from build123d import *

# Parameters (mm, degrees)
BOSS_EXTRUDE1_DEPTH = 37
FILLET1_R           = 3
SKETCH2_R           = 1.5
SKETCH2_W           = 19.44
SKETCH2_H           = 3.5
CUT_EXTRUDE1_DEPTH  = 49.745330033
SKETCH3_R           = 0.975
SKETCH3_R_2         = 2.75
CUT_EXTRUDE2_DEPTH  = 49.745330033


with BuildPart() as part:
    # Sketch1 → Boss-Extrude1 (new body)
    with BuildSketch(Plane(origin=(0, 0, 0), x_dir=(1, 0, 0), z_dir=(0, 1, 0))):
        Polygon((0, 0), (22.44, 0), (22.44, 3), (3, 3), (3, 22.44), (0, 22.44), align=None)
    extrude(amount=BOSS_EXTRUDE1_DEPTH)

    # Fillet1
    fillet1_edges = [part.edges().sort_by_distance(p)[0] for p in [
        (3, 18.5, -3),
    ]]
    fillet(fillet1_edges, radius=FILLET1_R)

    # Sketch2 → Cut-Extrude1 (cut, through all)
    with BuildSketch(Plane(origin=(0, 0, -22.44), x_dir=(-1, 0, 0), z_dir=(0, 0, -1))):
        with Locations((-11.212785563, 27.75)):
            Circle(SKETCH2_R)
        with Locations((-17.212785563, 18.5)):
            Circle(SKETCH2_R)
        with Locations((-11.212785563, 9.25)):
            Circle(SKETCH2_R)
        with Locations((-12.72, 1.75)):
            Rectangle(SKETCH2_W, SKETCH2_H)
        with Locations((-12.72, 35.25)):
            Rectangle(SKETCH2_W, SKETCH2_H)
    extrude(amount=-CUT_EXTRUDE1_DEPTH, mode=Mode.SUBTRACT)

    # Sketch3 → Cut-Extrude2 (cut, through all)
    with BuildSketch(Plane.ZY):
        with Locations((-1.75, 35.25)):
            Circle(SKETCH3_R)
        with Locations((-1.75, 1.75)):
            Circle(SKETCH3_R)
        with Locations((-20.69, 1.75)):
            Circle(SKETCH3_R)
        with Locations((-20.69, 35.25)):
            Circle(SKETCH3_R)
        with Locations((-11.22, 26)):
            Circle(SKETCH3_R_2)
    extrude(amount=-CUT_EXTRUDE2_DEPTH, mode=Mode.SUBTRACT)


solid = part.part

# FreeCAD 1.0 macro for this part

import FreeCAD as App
import Part
import Sketcher

V = App.Vector


def edges_at(feature, points):
    """Names of the edges that pass closest to the given points."""
    edges = feature.Shape.Edges
    near = lambda p: min(range(len(edges)), key=lambda i: edges[i].distToShape(Part.Vertex(*p))[0])
    return sorted({f"Edge{near(p) + 1}" for p in points})

doc = App.newDocument("Part")
body = doc.addObject("PartDesign::Body", "Body")

sketch1 = body.newObject("Sketcher::SketchObject", "Sketch")
sketch1.AttachmentSupport = (doc.getObject("XZ_Plane"), [""])
sketch1.MapMode = "FlatFace"
sketch1.addGeometry([
    Part.LineSegment(V(0, 0, 0), V(22.44, 0, 0)),
    Part.LineSegment(V(22.44, 0, 0), V(22.44, -3, 0)),
    Part.LineSegment(V(22.44, -3, 0), V(3, -3, 0)),
    Part.LineSegment(V(3, -3, 0), V(3, -22.44, 0)),
    Part.LineSegment(V(3, -22.44, 0), V(0, -22.44, 0)),
    Part.LineSegment(V(0, -22.44, 0), V(0, 0, 0)),
], False)
sketch1.addConstraint([
    Sketcher.Constraint("Coincident", 0, 2, 1, 1),
    Sketcher.Constraint("Coincident", 1, 2, 2, 1),
    Sketcher.Constraint("Coincident", 2, 2, 3, 1),
    Sketcher.Constraint("Coincident", 3, 2, 4, 1),
    Sketcher.Constraint("Coincident", 4, 2, 5, 1),
    Sketcher.Constraint("Coincident", 5, 2, 0, 1),
    Sketcher.Constraint("Horizontal", 0),
    Sketcher.Constraint("Vertical", 1),
    Sketcher.Constraint("Horizontal", 2),
    Sketcher.Constraint("Vertical", 3),
    Sketcher.Constraint("Horizontal", 4),
    Sketcher.Constraint("Vertical", 5),
    Sketcher.Constraint("Coincident", 5, 2, -1, 1),
    Sketcher.Constraint("Equal", 4, 1),
    Sketcher.Constraint("Equal", 2, 3),
    Sketcher.Constraint("DistanceX", 4, 2, 4, 1, 3.0),
    Sketcher.Constraint("DistanceX", 0, 1, 0, 2, 22.44),
])
pad1 = body.newObject("PartDesign::Pad", "Pad")
pad1.Profile = sketch1
pad1.Length = 37
pad1.Reversed = True
doc.recompute()

fillet = body.newObject("PartDesign::Fillet", "Fillet")
fillet.Base = (pad1, edges_at(pad1, [(3, 18.5, -3)]))
fillet.Radius = 3

sketch2 = body.newObject("Sketcher::SketchObject", "Sketch001")
sketch2.AttachmentSupport = (doc.getObject("XY_Plane"), [""])
sketch2.MapMode = "FlatFace"
sketch2.AttachmentOffset = App.Placement(V(0, 0, -22.44), App.Rotation())
sketch2.addGeometry([
    Part.Circle(V(11.212786, 27.75, 0), V(0, 0, 1), 1.5),
    Part.Circle(V(17.212786, 18.5, 0), V(0, 0, 1), 1.5),
    Part.Circle(V(11.212786, 9.25, 0), V(0, 0, 1), 1.5),
    Part.LineSegment(V(22.44, 3.5, 0), V(22.44, 0, 0)),
    Part.LineSegment(V(22.44, 0, 0), V(3, 0, 0)),
    Part.LineSegment(V(3, 0, 0), V(3, 3.5, 0)),
    Part.LineSegment(V(3, 3.5, 0), V(22.44, 3.5, 0)),
    Part.LineSegment(V(22.44, 37, 0), V(22.44, 33.5, 0)),
    Part.LineSegment(V(22.44, 33.5, 0), V(3, 33.5, 0)),
    Part.LineSegment(V(3, 33.5, 0), V(3, 37, 0)),
    Part.LineSegment(V(3, 37, 0), V(22.44, 37, 0)),
], False)
sketch2.addConstraint([
    Sketcher.Constraint("Coincident", 3, 2, 4, 1),
    Sketcher.Constraint("Coincident", 4, 2, 5, 1),
    Sketcher.Constraint("Coincident", 5, 2, 6, 1),
    Sketcher.Constraint("Coincident", 6, 2, 3, 1),
    Sketcher.Constraint("Coincident", 7, 2, 8, 1),
    Sketcher.Constraint("Coincident", 8, 2, 9, 1),
    Sketcher.Constraint("Coincident", 9, 2, 10, 1),
    Sketcher.Constraint("Coincident", 10, 2, 7, 1),
    Sketcher.Constraint("Vertical", 3),
    Sketcher.Constraint("Horizontal", 4),
    Sketcher.Constraint("Vertical", 5),
    Sketcher.Constraint("Horizontal", 6),
    Sketcher.Constraint("Vertical", 7),
    Sketcher.Constraint("Horizontal", 8),
    Sketcher.Constraint("Vertical", 9),
    Sketcher.Constraint("Horizontal", 10),
    Sketcher.Constraint("Equal", 0, 1),
    Sketcher.Constraint("Equal", 1, 2),
    Sketcher.Constraint("PointOnObject", 3, 2, -1),
    Sketcher.Constraint("Vertical", 0, 3, 2, 3),
    Sketcher.Constraint("Vertical", 6, 2, 7, 2),
    Sketcher.Constraint("Vertical", 5, 2, 8, 2),
    Sketcher.Constraint("Equal", 5, 7),
    Sketcher.Constraint("Diameter", 0, 3.0),
    Sketcher.Constraint("DistanceY", 3, 2, 3, 1, 3.5),
    Sketcher.Constraint("DistanceX", -1, 1, 4, 2, 3.0),
    Sketcher.Constraint("DistanceY", -1, 1, 9, 2, 37.0),
    Sketcher.Constraint("DistanceX", 0, 3, 1, 3, 6.0),
    Sketcher.Constraint("DistanceY", 5, 2, 1, 3, 15.0),
    Sketcher.Constraint("DistanceX", 4, 2, 4, 1, 19.44),
    Sketcher.Constraint("DistanceY", 2, 3, 0, 3, 18.5),
    Sketcher.Constraint("DistanceY", -1, 1, 0, 3, 27.75),
    Sketcher.Constraint("DistanceX", -1, 1, 0, 3, 11.212786),
])
pocket1 = body.newObject("PartDesign::Pocket", "Pocket")
pocket1.Profile = sketch2
pocket1.Type = "ThroughAll"
pocket1.Reversed = True

sketch3 = body.newObject("Sketcher::SketchObject", "Sketch002")
sketch3.AttachmentSupport = (doc.getObject("YZ_Plane"), [""])
sketch3.MapMode = "FlatFace"
sketch3.addGeometry([
    Part.Circle(V(35.25, -1.75, 0), V(0, 0, 1), 0.975),
    Part.Circle(V(1.75, -1.75, 0), V(0, 0, 1), 0.975),
    Part.Circle(V(1.75, -20.69, 0), V(0, 0, 1), 0.975),
    Part.Circle(V(35.25, -20.69, 0), V(0, 0, 1), 0.975),
    Part.Circle(V(26, -11.22, 0), V(0, 0, 1), 2.75),
], False)
sketch3.addConstraint([
    Sketcher.Constraint("Equal", 0, 1),
    Sketcher.Constraint("Equal", 1, 2),
    Sketcher.Constraint("Equal", 2, 3),
    Sketcher.Constraint("Horizontal", 0, 3, 1, 3),
    Sketcher.Constraint("Horizontal", 2, 3, 3, 3),
    Sketcher.Constraint("Vertical", 1, 3, 2, 3),
    Sketcher.Constraint("Vertical", 0, 3, 3, 3),
    Sketcher.Constraint("Diameter", 4, 5.5),
    Sketcher.Constraint("Diameter", 0, 1.95),
    Sketcher.Constraint("DistanceX", -1, 1, 4, 3, 26.0),
    Sketcher.Constraint("DistanceX", 1, 3, 0, 3, 33.5),
    Sketcher.Constraint("DistanceX", -1, 1, 0, 3, 35.25),
    Sketcher.Constraint("DistanceY", 0, 3, -1, 1, 1.75),
    Sketcher.Constraint("DistanceY", 2, 3, -1, 1, 20.69),
    Sketcher.Constraint("DistanceY", 4, 3, -1, 1, 11.22),
])
pocket2 = body.newObject("PartDesign::Pocket", "Pocket001")
pocket2.Profile = sketch3
pocket2.Type = "ThroughAll"
pocket2.Reversed = True

doc.recompute()
